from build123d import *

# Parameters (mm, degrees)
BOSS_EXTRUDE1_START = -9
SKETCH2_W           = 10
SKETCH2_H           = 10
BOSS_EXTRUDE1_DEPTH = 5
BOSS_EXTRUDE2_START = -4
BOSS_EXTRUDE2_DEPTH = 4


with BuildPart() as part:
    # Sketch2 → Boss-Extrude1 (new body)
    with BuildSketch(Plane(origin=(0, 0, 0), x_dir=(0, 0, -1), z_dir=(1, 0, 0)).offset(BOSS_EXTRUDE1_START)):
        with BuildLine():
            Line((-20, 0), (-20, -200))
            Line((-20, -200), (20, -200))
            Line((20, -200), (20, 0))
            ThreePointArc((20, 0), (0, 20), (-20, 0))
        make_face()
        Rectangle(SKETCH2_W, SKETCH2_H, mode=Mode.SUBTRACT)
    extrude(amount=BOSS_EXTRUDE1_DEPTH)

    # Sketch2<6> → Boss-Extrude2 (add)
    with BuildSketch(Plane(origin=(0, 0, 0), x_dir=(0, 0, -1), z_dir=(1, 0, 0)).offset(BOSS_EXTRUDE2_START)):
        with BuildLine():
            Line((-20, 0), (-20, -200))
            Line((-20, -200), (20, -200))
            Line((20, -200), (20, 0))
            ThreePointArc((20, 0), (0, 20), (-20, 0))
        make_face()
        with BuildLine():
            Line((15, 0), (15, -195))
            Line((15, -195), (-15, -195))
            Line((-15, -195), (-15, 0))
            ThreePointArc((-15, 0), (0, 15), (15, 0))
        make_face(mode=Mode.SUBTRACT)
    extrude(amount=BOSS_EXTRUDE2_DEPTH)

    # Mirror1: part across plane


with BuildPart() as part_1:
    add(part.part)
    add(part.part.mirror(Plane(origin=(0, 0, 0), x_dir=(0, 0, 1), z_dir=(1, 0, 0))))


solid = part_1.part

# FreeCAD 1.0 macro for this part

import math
import FreeCAD as App
import Part
import Sketcher
Q = App.Units.Quantity


def add_polygon(sketch, points):
    """Adds a closed chain of lines whose ends are joined by coincident constraints."""
    first, n = sketch.GeometryCount, len(points)
    for a, b in zip(points, points[1:] + points[:1]):
        sketch.addGeometry(Part.LineSegment(App.Vector(*a, 0), App.Vector(*b, 0)), False)
    for i in range(n):
        sketch.addConstraint(Sketcher.Constraint("Coincident", first + i, 2, first + (i + 1) % n, 1))

doc = App.newDocument("Part")
params = doc.addObject("Spreadsheet::Sheet", "Params")
for row, (alias, value) in enumerate([
    ("sketch1_radius", "20 mm"),
    ("sketch1_width", "200 mm"),
    ("sketch1_width2", "10 mm"),
    ("pad1_length", "5 mm"),
    ("sketch2_radius", "20 mm"),
    ("sketch2_radius2", "15 mm"),
    ("sketch2_width", "200 mm"),
    ("sketch2_width2", "195 mm"),
    ("pad2_length", "4 mm"),
], start=1):
    params.set(f"A{row}", alias)
    params.set(f"B{row}", "=" + value)
    params.setAlias(f"B{row}", alias)

body = doc.addObject("PartDesign::Body", "Body")

sketch1 = body.newObject("Sketcher::SketchObject", "Sketch")
sketch1.AttachmentSupport = (doc.getObject("YZ_Plane"), [""])
sketch1.MapMode = "FlatFace"
sketch1.AttachmentOffset = App.Placement(App.Vector(0, 0, -9), App.Rotation())
sketch1.addGeometry(Part.LineSegment(App.Vector(0, 20, 0), App.Vector(-200, 20, 0)), False)
sketch1.addGeometry(Part.LineSegment(App.Vector(-200, 20, 0), App.Vector(-200, -20, 0)), False)
sketch1.addGeometry(Part.LineSegment(App.Vector(-200, -20, 0), App.Vector(0, -20, 0)), False)
sketch1.addGeometry(Part.ArcOfCircle(Part.Circle(App.Vector(0, 0, 0), App.Vector(0, 0, 1), 20), math.radians(-90), math.radians(90)), False)
add_polygon(sketch1, [(-5, -5), (-5, 5), (5, 5), (5, -5)])
sketch1.addConstraint([
    Sketcher.Constraint("Coincident", 0, 2, 1, 1),
    Sketcher.Constraint("Coincident", 1, 2, 2, 1),
    Sketcher.Constraint("Tangent", 2, 2, 3, 1),
    Sketcher.Constraint("Tangent", 3, 2, 0, 1),
    Sketcher.Constraint("Horizontal", 0),
    Sketcher.Constraint("Vertical", 1),
    Sketcher.Constraint("Horizontal", 2),
    Sketcher.Constraint("Vertical", 4),
    Sketcher.Constraint("Horizontal", 5),
    Sketcher.Constraint("Vertical", 6),
    Sketcher.Constraint("Horizontal", 7),
    Sketcher.Constraint("Coincident", 3, 3, -1, 1),
    Sketcher.Constraint("Symmetric", 4, 2, 6, 2, -1, 1),
    Sketcher.Constraint("Equal", 7, 4),
    Sketcher.Constraint("Radius", 3, Q("20 mm")),
    Sketcher.Constraint("DistanceX", 0, 2, 0, 1, Q("200 mm")),
    Sketcher.Constraint("DistanceX", 5, 1, 5, 2, Q("10 mm")),
])
sketch1.setExpression("Constraints[18]", "Params.sketch1_radius")
sketch1.setExpression("Constraints[19]", "Params.sketch1_width")
sketch1.setExpression("Constraints[20]", "Params.sketch1_width2")
pad1 = body.newObject("PartDesign::Pad", "Pad")
pad1.Profile = sketch1
pad1.setExpression("Length", "Params.pad1_length")

sketch2 = body.newObject("Sketcher::SketchObject", "Sketch001")
sketch2.AttachmentSupport = (doc.getObject("YZ_Plane"), [""])
sketch2.MapMode = "FlatFace"
sketch2.AttachmentOffset = App.Placement(App.Vector(0, 0, -4), App.Rotation())
sketch2.addGeometry([
    Part.LineSegment(App.Vector(0, 20, 0), App.Vector(-200, 20, 0)),
    Part.LineSegment(App.Vector(-200, 20, 0), App.Vector(-200, -20, 0)),
    Part.LineSegment(App.Vector(-200, -20, 0), App.Vector(0, -20, 0)),
    Part.ArcOfCircle(Part.Circle(App.Vector(0, 0, 0), App.Vector(0, 0, 1), 20), math.radians(-90), math.radians(90)),
    Part.ArcOfCircle(Part.Circle(App.Vector(0, 0, 0), App.Vector(0, 0, 1), 15), math.radians(-90), math.radians(90)),
    Part.LineSegment(App.Vector(0, -15, 0), App.Vector(-195, -15, 0)),
    Part.LineSegment(App.Vector(-195, -15, 0), App.Vector(-195, 15, 0)),
    Part.LineSegment(App.Vector(-195, 15, 0), App.Vector(0, 15, 0)),
], False)
sketch2.addConstraint([
    Sketcher.Constraint("Coincident", 0, 2, 1, 1),
    Sketcher.Constraint("Coincident", 1, 2, 2, 1),
    Sketcher.Constraint("Tangent", 2, 2, 3, 1),
    Sketcher.Constraint("Tangent", 3, 2, 0, 1),
    Sketcher.Constraint("Tangent", 4, 1, 5, 1),
    Sketcher.Constraint("Coincident", 5, 2, 6, 1),
    Sketcher.Constraint("Coincident", 6, 2, 7, 1),
    Sketcher.Constraint("Tangent", 7, 2, 4, 2),
    Sketcher.Constraint("Horizontal", 0),
    Sketcher.Constraint("Vertical", 1),
    Sketcher.Constraint("Horizontal", 2),
    Sketcher.Constraint("Horizontal", 5),
    Sketcher.Constraint("Vertical", 6),
    Sketcher.Constraint("Horizontal", 7),
    Sketcher.Constraint("Coincident", 3, 3, -1, 1),
    Sketcher.Constraint("Coincident", 4, 3, -1, 1),
    Sketcher.Constraint("Radius", 3, Q("20 mm")),
    Sketcher.Constraint("Radius", 4, Q("15 mm")),
    Sketcher.Constraint("DistanceX", 0, 2, 0, 1, Q("200 mm")),
    Sketcher.Constraint("DistanceX", 5, 2, 5, 1, Q("195 mm")),
])
sketch2.setExpression("Constraints[16]", "Params.sketch2_radius")
sketch2.setExpression("Constraints[17]", "Params.sketch2_radius2")
sketch2.setExpression("Constraints[18]", "Params.sketch2_width")
sketch2.setExpression("Constraints[19]", "Params.sketch2_width2")
pad2 = body.newObject("PartDesign::Pad", "Pad001")
pad2.Profile = sketch2
pad2.setExpression("Length", "Params.pad2_length")
body2 = doc.addObject("PartDesign::Body", "Body001")
doc.recompute()

body2.BaseFeature = body
doc.recompute()

mirroring = doc.addObject("Part::Mirroring", "Mirroring")
mirroring.Source = body
mirroring.Base = App.Vector(0, 0, 0)
mirroring.Normal = App.Vector(1, 0, 0)
body3 = doc.addObject("PartDesign::Body", "Body002")
body3.BaseFeature = mirroring
boolean = body2.newObject("PartDesign::Boolean", "Boolean")
boolean.Type = "Fuse"
boolean.addObjects([body3])
doc.recompute()
mirroring.Visibility = False

doc.recompute()
